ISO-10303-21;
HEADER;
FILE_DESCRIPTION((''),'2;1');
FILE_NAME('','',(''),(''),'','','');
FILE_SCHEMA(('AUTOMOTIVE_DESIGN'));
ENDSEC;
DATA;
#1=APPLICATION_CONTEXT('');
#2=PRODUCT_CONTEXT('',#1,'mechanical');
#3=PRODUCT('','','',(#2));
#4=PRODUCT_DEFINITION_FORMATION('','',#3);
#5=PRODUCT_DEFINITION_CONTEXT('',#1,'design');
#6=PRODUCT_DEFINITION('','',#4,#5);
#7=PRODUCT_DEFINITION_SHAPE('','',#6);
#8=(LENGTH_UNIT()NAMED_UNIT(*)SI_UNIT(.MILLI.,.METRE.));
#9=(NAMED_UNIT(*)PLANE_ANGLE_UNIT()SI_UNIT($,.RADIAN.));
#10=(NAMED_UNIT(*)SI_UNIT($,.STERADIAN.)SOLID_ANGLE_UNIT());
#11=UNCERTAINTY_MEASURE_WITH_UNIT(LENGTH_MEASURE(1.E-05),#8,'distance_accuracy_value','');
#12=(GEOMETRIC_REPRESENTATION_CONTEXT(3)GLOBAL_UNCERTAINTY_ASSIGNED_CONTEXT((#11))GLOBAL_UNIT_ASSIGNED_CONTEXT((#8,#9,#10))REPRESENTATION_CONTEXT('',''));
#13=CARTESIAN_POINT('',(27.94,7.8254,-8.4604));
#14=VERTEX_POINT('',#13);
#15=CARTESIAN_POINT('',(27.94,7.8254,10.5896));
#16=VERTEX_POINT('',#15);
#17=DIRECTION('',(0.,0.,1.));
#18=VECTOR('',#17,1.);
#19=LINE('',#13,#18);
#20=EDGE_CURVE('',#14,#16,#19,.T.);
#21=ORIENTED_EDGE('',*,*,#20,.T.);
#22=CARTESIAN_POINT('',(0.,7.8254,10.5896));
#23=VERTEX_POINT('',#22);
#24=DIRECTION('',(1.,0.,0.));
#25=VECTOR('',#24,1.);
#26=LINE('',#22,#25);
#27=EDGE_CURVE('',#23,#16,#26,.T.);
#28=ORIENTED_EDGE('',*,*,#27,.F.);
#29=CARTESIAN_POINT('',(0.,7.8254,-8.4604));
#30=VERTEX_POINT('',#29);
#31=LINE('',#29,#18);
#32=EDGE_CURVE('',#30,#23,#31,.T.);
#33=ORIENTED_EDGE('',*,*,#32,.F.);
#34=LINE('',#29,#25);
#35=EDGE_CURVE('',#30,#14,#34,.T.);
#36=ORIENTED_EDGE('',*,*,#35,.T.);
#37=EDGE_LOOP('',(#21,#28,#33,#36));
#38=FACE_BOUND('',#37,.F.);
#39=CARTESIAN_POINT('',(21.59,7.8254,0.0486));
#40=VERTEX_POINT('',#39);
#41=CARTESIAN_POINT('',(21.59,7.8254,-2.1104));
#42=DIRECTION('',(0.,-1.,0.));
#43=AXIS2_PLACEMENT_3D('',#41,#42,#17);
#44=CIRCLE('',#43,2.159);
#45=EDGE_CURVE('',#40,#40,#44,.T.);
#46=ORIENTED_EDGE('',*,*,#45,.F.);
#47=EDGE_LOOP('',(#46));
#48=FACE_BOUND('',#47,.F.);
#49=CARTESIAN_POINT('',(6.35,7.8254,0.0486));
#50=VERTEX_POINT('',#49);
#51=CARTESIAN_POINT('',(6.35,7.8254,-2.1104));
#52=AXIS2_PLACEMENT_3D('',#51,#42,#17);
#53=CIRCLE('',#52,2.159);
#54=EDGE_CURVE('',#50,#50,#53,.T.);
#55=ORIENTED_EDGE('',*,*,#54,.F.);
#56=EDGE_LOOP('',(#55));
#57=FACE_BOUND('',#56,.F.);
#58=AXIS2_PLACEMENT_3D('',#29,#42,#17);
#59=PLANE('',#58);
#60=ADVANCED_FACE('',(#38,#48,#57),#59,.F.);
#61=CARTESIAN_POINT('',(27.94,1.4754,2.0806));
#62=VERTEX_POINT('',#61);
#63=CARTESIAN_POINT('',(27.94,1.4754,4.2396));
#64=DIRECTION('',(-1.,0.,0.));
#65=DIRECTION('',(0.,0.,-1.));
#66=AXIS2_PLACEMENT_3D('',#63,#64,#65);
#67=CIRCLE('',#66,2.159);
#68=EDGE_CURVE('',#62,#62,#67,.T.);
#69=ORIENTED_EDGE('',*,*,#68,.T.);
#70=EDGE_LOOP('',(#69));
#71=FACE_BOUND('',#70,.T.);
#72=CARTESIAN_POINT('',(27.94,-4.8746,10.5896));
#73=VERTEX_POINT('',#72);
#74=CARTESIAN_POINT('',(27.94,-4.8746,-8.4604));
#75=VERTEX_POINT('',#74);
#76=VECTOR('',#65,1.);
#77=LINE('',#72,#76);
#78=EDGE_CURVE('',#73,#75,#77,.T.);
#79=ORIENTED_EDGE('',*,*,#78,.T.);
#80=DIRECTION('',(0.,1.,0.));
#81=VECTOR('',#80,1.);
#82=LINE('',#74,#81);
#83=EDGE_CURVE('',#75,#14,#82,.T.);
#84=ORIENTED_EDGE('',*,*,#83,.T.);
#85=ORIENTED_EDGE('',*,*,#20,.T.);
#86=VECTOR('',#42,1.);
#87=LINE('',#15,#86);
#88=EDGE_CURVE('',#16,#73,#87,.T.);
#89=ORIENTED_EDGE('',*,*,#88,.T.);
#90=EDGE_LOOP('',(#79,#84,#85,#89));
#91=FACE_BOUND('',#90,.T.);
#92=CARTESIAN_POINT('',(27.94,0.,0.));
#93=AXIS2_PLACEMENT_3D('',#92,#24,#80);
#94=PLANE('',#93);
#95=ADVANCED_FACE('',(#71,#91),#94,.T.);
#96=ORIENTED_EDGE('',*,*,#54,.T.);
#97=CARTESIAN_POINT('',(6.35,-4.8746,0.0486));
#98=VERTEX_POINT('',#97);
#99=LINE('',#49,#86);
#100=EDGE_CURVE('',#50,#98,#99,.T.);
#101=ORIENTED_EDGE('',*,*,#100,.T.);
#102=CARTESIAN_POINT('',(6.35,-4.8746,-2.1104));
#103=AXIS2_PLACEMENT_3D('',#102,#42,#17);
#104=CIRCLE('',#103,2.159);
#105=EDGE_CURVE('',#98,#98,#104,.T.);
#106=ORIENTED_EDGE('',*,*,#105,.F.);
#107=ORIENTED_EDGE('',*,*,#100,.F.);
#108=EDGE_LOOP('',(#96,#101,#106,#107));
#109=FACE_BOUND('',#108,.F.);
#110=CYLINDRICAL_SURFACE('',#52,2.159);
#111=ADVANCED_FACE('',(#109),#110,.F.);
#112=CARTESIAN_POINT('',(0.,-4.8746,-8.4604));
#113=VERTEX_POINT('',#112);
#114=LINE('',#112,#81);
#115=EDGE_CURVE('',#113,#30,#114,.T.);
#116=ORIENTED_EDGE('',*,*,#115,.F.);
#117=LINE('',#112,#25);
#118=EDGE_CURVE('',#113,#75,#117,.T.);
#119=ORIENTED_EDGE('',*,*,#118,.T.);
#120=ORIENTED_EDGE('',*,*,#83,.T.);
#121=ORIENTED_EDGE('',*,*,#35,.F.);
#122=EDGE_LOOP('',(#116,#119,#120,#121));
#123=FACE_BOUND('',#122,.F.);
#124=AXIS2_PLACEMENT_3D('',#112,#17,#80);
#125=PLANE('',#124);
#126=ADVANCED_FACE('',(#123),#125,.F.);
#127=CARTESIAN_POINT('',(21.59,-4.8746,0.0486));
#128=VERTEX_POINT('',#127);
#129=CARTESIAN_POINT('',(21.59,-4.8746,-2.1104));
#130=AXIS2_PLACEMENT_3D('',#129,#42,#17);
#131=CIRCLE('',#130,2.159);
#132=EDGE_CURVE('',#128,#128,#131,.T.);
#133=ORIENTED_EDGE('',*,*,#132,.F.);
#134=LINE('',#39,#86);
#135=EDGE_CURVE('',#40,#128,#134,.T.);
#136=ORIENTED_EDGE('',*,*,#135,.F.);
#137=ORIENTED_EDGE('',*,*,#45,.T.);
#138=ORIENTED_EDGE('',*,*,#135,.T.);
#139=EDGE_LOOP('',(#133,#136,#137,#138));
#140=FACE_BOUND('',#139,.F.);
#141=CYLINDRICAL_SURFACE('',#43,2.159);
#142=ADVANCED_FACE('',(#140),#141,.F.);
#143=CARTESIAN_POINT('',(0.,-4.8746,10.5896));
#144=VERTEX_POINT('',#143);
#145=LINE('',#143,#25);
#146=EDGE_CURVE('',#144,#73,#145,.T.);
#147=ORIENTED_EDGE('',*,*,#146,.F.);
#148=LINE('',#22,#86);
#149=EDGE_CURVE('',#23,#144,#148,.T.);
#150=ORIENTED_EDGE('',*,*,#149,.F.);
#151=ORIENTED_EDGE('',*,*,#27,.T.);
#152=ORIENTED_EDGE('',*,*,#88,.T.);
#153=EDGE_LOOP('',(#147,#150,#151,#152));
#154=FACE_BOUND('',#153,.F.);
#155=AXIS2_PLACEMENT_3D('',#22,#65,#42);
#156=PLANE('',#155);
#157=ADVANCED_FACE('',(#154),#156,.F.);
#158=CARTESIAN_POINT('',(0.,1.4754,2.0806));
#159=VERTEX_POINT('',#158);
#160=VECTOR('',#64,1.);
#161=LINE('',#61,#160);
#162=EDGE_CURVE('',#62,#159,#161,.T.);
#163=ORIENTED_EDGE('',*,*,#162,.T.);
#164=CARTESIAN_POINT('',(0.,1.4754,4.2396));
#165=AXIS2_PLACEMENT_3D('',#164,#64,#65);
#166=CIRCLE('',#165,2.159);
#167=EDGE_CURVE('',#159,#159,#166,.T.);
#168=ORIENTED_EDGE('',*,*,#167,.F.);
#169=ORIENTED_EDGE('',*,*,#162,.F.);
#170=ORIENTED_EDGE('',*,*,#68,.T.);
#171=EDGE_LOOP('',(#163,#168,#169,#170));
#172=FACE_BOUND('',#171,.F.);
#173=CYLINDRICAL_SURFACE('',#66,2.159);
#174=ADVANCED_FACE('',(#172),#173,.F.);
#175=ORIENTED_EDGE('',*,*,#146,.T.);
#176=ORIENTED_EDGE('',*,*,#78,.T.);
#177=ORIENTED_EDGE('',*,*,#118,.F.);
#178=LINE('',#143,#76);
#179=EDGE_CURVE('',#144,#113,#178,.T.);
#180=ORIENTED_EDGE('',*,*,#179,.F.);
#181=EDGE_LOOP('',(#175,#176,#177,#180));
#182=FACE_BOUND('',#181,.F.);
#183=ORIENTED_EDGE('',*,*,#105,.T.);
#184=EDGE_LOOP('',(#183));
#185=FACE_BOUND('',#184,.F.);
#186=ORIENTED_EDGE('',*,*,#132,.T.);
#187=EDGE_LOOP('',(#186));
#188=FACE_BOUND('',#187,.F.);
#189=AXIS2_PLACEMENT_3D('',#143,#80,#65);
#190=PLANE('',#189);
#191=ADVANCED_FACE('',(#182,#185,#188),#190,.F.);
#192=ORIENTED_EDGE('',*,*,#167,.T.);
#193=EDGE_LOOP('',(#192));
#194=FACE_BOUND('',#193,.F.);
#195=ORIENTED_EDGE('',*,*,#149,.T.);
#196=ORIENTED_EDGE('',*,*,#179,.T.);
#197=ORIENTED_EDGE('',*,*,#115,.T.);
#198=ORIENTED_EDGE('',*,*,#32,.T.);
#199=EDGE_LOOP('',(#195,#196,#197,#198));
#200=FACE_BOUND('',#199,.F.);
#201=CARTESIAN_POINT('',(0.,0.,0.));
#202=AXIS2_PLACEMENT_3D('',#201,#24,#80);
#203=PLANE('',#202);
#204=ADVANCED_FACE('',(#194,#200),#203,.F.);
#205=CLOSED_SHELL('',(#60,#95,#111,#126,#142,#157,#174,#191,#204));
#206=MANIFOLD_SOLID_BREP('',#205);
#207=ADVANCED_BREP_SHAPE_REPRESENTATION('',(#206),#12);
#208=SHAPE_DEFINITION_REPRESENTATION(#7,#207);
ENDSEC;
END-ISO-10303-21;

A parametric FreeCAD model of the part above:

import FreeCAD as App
import Part
import Sketcher

V = App.Vector
Q = App.Units.Quantity


def add_polygon(sketch, points):
    """Adds a closed chain of lines whose ends are joined by coincident constraints."""
    first, n = sketch.GeometryCount, len(points)
    for a, b in zip(points, points[1:] + points[:1]):
        sketch.addGeometry(Part.LineSegment(App.Vector(*a, 0), App.Vector(*b, 0)), False)
    for i in range(n):
        sketch.addConstraint(Sketcher.Constraint("Coincident", first + i, 2, first + (i + 1) % n, 1))

doc = App.newDocument("Part")
body = doc.addObject("PartDesign::Body", "Body")

# Sketch on YZ plane
sketch1 = body.newObject("Sketcher::SketchObject", "Sketch")
sketch1.AttachmentSupport = (doc.getObject("YZ_Plane"), [""])
sketch1.MapMode = "FlatFace"
add_polygon(sketch1, [(7.8254, -8.4604), (7.8254, 10.5896), (-4.8746, 10.5896), (-4.8746, -8.4604)])  # lines 0-3
sketch1.addConstraint([
    Sketcher.Constraint("Vertical", 0),
    Sketcher.Constraint("Horizontal", 1),
    Sketcher.Constraint("Vertical", 2),
    Sketcher.Constraint("Horizontal", 3),
    Sketcher.Constraint("DistanceX", 1, 2, 1, 1, Q("0.5 in")),
    Sketcher.Constraint("DistanceY", 0, 1, 0, 2, Q("0.75 in")),
    Sketcher.Constraint("DistanceX", -1, 1, 0, 2, Q("7.8254 mm")),
    Sketcher.Constraint("DistanceY", -1, 1, 0, 2, Q("10.5896 mm")),
])
pad1 = body.newObject("PartDesign::Pad", "Pad")
pad1.Profile = sketch1
pad1.Length = Q("1.1 in")

# Sketch on YZ plane
sketch2 = body.newObject("Sketcher::SketchObject", "Sketch001")
sketch2.AttachmentSupport = (doc.getObject("YZ_Plane"), [""])
sketch2.MapMode = "FlatFace"
sketch2.AttachmentOffset = App.Placement(V(0, 0, 1.1 * 25.4), App.Rotation())
sketch2.addGeometry(Part.Circle(V(1.4754, 4.2396, 0), V(0, 0, 1), 2.159), False)
sketch2.addConstraint([
    Sketcher.Constraint("Diameter", 0, Q("0.17 in")),
    Sketcher.Constraint("DistanceX", -1, 1, 0, 3, Q("1.4754 mm")),
    Sketcher.Constraint("DistanceY", -1, 1, 0, 3, Q("4.2396 mm")),
])
doc.recompute()
hole = body.newObject("PartDesign::Hole", "Hole")
hole.Profile = sketch2
hole.ThreadType = "None"
hole.Diameter = Q("0.17 in")
hole.DepthType = "ThroughAll"

# Sketch on XZ plane
sketch3 = body.newObject("Sketcher::SketchObject", "Sketch002")
sketch3.AttachmentSupport = (doc.getObject("XZ_Plane"), [""])
sketch3.MapMode = "FlatFace"
sketch3.AttachmentOffset = App.Placement(V(0, 0, -7.8254), App.Rotation())
sketch3.addGeometry([
    Part.Circle(V(6.35, -2.1104, 0), V(0, 0, 1), 2.159),
    Part.Circle(V(21.59, -2.1104, 0), V(0, 0, 1), 2.159),
], False)
sketch3.addConstraint([
    Sketcher.Constraint("Equal", 0, 1),
    Sketcher.Constraint("Horizontal", 0, 3, 1, 3),
    Sketcher.Constraint("Diameter", 0, Q("0.17 in")),
    Sketcher.Constraint("DistanceX", 0, 3, 1, 3, Q("0.6 in")),
    Sketcher.Constraint("DistanceX", -1, 1, 0, 3, Q("0.25 in")),
    Sketcher.Constraint("DistanceY", 0, 3, -1, 1, Q("2.1104 mm")),
])
doc.recompute()
hole2 = body.newObject("PartDesign::Hole", "Hole001")
hole2.Profile = sketch3
hole2.ThreadType = "None"
hole2.Diameter = Q("0.17 in")
hole2.DepthType = "ThroughAll"
hole2.Reversed = True

doc.recompute()
